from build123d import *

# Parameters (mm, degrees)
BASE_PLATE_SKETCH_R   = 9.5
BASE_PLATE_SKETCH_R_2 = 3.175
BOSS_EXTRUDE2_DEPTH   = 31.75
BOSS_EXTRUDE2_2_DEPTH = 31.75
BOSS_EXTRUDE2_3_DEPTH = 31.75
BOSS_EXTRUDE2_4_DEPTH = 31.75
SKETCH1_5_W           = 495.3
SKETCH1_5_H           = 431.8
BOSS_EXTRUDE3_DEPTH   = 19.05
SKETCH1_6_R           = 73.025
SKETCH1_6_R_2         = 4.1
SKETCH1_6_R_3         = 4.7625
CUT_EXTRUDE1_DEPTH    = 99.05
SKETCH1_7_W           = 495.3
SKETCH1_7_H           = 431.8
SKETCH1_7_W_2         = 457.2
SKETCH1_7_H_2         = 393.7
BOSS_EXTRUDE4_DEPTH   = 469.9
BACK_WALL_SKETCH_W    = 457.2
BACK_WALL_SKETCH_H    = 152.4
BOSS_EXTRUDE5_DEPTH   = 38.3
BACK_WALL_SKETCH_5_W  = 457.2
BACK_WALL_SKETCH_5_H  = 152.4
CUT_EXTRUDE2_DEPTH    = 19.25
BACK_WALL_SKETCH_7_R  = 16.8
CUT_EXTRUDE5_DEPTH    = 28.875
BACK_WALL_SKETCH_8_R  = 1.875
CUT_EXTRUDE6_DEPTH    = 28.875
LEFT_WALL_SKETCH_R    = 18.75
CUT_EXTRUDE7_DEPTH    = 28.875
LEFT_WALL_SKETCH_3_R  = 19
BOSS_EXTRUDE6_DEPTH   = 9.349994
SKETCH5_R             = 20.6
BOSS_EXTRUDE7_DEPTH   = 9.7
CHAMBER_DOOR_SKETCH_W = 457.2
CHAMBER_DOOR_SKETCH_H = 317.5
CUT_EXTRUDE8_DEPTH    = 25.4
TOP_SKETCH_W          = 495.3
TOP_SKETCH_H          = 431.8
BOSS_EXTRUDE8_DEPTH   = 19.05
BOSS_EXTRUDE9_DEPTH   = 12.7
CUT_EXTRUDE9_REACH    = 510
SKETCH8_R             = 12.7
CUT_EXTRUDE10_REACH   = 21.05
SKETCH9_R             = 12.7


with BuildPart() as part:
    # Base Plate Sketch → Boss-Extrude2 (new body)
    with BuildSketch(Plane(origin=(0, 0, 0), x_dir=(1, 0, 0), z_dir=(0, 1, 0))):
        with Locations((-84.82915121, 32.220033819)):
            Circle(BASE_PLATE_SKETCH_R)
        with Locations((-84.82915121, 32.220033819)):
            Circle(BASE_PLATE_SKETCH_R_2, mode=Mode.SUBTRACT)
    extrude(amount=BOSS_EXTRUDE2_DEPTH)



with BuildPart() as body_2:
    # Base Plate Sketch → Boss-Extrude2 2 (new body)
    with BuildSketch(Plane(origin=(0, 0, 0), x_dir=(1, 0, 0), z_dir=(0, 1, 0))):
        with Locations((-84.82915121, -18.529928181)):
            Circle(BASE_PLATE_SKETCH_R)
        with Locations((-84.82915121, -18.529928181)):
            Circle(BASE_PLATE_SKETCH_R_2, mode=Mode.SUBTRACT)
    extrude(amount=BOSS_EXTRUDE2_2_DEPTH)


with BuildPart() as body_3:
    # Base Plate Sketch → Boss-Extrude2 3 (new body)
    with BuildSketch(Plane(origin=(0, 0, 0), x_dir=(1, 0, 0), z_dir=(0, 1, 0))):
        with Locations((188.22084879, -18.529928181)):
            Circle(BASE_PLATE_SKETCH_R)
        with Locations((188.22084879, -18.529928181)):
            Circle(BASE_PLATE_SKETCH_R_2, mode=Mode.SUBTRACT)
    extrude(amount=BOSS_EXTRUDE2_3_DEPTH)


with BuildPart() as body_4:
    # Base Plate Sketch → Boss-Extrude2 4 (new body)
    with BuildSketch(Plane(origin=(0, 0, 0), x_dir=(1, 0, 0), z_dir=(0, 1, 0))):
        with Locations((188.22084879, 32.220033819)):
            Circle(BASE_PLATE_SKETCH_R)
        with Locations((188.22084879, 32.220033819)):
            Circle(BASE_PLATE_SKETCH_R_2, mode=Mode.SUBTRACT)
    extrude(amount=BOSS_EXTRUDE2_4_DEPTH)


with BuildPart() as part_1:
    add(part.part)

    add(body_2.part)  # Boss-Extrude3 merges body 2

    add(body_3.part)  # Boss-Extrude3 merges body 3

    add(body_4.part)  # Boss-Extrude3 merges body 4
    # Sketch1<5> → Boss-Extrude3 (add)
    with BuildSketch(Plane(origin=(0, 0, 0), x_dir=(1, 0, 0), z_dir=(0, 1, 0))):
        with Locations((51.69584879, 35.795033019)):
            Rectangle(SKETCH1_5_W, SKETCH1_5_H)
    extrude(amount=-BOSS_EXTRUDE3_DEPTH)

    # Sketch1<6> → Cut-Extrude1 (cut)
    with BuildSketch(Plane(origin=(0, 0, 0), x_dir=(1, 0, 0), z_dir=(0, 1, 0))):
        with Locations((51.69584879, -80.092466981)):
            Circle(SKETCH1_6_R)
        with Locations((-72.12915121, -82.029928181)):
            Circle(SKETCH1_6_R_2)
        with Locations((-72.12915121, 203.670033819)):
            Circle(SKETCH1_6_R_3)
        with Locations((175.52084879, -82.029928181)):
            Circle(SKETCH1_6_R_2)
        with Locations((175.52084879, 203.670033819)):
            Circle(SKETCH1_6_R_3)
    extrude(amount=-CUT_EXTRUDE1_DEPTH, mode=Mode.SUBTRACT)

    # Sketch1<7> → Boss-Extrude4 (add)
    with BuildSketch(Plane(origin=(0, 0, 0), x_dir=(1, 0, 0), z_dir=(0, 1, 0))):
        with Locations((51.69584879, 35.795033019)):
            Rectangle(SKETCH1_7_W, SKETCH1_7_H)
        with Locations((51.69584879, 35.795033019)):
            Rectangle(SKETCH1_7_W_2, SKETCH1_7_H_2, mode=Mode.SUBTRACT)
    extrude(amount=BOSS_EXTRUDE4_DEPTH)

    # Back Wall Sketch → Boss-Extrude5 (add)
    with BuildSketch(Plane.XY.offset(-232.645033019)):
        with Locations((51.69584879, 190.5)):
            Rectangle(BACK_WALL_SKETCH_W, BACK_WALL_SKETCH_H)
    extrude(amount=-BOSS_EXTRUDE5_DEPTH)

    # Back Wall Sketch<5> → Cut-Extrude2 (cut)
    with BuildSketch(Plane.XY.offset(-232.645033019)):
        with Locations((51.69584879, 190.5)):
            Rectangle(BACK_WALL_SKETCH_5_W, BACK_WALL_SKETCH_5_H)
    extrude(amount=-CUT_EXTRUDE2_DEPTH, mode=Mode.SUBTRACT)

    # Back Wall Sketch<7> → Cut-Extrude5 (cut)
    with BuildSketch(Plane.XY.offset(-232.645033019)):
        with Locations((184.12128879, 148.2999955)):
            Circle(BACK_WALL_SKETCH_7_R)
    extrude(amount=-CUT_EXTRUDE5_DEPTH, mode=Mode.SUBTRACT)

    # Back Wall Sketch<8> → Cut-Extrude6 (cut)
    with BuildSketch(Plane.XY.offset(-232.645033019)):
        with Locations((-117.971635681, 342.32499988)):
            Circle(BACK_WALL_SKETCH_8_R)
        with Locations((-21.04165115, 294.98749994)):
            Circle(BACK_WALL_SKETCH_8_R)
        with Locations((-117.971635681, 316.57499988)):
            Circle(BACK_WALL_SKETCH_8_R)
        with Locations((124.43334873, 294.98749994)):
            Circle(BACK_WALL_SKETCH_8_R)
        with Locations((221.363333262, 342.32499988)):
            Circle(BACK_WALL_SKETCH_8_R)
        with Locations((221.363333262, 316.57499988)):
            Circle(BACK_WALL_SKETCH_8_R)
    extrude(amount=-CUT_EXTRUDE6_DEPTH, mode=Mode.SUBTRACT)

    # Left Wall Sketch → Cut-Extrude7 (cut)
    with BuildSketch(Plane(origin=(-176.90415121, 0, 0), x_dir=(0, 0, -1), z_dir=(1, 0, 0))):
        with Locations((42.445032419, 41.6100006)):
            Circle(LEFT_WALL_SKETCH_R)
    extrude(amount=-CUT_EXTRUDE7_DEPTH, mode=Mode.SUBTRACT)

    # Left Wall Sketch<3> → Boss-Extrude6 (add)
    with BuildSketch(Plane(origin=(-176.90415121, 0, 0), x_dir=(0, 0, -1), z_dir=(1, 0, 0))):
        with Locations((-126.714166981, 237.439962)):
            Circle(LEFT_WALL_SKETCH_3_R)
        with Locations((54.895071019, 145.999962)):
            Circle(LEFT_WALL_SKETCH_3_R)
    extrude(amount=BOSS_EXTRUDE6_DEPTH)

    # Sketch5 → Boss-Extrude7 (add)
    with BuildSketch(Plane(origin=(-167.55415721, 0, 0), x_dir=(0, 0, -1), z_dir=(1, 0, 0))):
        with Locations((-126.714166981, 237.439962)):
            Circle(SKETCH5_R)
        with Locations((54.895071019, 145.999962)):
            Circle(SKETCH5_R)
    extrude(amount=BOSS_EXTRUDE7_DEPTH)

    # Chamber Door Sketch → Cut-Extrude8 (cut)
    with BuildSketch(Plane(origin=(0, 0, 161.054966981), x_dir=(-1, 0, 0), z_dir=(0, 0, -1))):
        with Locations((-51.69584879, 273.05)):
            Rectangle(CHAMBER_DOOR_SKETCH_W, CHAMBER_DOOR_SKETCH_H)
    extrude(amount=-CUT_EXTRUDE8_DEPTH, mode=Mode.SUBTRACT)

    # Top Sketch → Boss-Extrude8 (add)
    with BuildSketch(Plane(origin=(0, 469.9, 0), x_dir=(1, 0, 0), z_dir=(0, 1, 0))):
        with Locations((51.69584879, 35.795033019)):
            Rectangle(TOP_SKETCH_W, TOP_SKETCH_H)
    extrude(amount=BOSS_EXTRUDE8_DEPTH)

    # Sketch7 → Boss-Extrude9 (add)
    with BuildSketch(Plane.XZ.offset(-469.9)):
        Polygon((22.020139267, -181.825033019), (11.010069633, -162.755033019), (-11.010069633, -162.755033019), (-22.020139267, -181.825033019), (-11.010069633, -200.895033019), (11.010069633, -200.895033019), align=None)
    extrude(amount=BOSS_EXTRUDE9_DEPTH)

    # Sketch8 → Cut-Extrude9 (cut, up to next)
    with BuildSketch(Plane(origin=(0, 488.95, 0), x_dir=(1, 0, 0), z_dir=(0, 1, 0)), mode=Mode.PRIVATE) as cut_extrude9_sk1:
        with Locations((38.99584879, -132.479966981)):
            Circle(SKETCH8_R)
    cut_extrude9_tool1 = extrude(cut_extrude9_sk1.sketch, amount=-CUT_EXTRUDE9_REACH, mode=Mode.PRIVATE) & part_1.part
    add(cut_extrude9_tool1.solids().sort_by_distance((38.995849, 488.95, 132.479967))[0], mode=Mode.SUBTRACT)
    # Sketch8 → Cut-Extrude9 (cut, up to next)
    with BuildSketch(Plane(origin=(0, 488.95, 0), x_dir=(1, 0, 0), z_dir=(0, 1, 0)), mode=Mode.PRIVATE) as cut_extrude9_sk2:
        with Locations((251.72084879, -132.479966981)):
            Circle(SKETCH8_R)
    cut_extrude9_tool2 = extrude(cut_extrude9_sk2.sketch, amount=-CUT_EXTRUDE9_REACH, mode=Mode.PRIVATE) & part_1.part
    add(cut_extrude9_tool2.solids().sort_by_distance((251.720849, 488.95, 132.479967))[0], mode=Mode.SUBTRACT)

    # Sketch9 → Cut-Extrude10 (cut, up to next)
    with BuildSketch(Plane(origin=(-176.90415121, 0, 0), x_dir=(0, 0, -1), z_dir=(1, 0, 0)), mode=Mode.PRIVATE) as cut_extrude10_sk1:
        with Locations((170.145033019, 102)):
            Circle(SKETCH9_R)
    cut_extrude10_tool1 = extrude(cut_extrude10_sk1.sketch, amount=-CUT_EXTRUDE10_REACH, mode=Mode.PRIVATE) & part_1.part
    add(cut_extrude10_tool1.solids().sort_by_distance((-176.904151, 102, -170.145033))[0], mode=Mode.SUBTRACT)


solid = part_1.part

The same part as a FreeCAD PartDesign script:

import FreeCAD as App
import Part
import Sketcher
Q = App.Units.Quantity

doc = App.newDocument("Part")
body = doc.addObject("PartDesign::Body", "Body")

sketch1 = doc.addObject("Sketcher::SketchObject", "Sketch")
body.addObject(sketch1)
sketch1.AttachmentSupport = (doc.XZ_Plane, [""])
sketch1.MapMode = "FlatFace"
sketch1.addGeometry(Part.Circle(App.Vector(-84.8, -32.2, 0), App.Vector(0, 0, 1), 9.5), False)
sketch1.addGeometry(Part.Circle(App.Vector(-84.8, -32.2, 0), App.Vector(0, 0, 1), 3.2), False)
sketch1.addConstraint(Sketcher.Constraint("Coincident", 1, 3, 0, 3))
sketch1.addConstraint(Sketcher.Constraint("Diameter", 1, Q("0.25 in")))
sketch1.addConstraint(Sketcher.Constraint("Diameter", 0, 19.0))
sketch1.addConstraint(Sketcher.Constraint("DistanceX", 0, 3, -1, 1, 84.829151))
sketch1.addConstraint(Sketcher.Constraint("DistanceY", 0, 3, -1, 1, 32.220034))
pad1 = doc.addObject("PartDesign::Pad", "Pad")
body.addObject(pad1)
pad1.Profile = sketch1
pad1.Length = Q("1.25 in")
pad1.Reversed = True
body2 = doc.addObject("PartDesign::Body", "Body001")

sketch2 = doc.addObject("Sketcher::SketchObject", "Sketch001")
body2.addObject(sketch2)
sketch2.AttachmentSupport = (doc.getObject("XZ_Plane001"), [""])
sketch2.MapMode = "FlatFace"
sketch2.addGeometry(Part.Circle(App.Vector(-84.8, 18.5, 0), App.Vector(0, 0, 1), 9.5), False)
sketch2.addGeometry(Part.Circle(App.Vector(-84.8, 18.5, 0), App.Vector(0, 0, 1), 3.2), False)
sketch2.addConstraint(Sketcher.Constraint("Coincident", 1, 3, 0, 3))
sketch2.addConstraint(Sketcher.Constraint("Diameter", 1, Q("0.25 in")))
sketch2.addConstraint(Sketcher.Constraint("Diameter", 0, 19.0))
sketch2.addConstraint(Sketcher.Constraint("DistanceX", 0, 3, -1, 1, 84.829151))
sketch2.addConstraint(Sketcher.Constraint("DistanceY", -1, 1, 0, 3, 18.529928))
pad2 = doc.addObject("PartDesign::Pad", "Pad001")
body2.addObject(pad2)
pad2.Profile = sketch2
pad2.Length = Q("1.25 in")
pad2.Reversed = True
body3 = doc.addObject("PartDesign::Body", "Body002")

sketch3 = doc.addObject("Sketcher::SketchObject", "Sketch002")
body3.addObject(sketch3)
sketch3.AttachmentSupport = (doc.getObject("XZ_Plane002"), [""])
sketch3.MapMode = "FlatFace"
sketch3.addGeometry(Part.Circle(App.Vector(188.2, 18.5, 0), App.Vector(0, 0, 1), 9.5), False)
sketch3.addGeometry(Part.Circle(App.Vector(188.2, 18.5, 0), App.Vector(0, 0, 1), 3.2), False)
sketch3.addConstraint(Sketcher.Constraint("Coincident", 1, 3, 0, 3))
sketch3.addConstraint(Sketcher.Constraint("Diameter", 1, Q("0.25 in")))
sketch3.addConstraint(Sketcher.Constraint("Diameter", 0, 19.0))
sketch3.addConstraint(Sketcher.Constraint("DistanceX", -1, 1, 0, 3, 188.220849))
sketch3.addConstraint(Sketcher.Constraint("DistanceY", -1, 1, 0, 3, 18.529928))
pad3 = doc.addObject("PartDesign::Pad", "Pad002")
body3.addObject(pad3)
pad3.Profile = sketch3
pad3.Length = Q("1.25 in")
pad3.Reversed = True
body4 = doc.addObject("PartDesign::Body", "Body003")

sketch4 = doc.addObject("Sketcher::SketchObject", "Sketch003")
body4.addObject(sketch4)
sketch4.AttachmentSupport = (doc.getObject("XZ_Plane003"), [""])
sketch4.MapMode = "FlatFace"
sketch4.addGeometry(Part.Circle(App.Vector(188.2, -32.2, 0), App.Vector(0, 0, 1), 9.5), False)
sketch4.addGeometry(Part.Circle(App.Vector(188.2, -32.2, 0), App.Vector(0, 0, 1), 3.2), False)
sketch4.addConstraint(Sketcher.Constraint("Coincident", 1, 3, 0, 3))
sketch4.addConstraint(Sketcher.Constraint("Diameter", 1, Q("0.25 in")))
sketch4.addConstraint(Sketcher.Constraint("Diameter", 0, 19.0))
sketch4.addConstraint(Sketcher.Constraint("DistanceX", -1, 1, 0, 3, 188.220849))
sketch4.addConstraint(Sketcher.Constraint("DistanceY", 0, 3, -1, 1, 32.220034))
pad4 = doc.addObject("PartDesign::Pad", "Pad003")
body4.addObject(pad4)
pad4.Profile = sketch4
pad4.Length = Q("1.25 in")
pad4.Reversed = True
body.AllowCompound = True
doc.recompute()

boolean = doc.addObject("PartDesign::Boolean", "Boolean")
body.addObject(boolean)
boolean.Type = "Fuse"
boolean.addObjects([body2])
doc.recompute()

boolean2 = doc.addObject("PartDesign::Boolean", "Boolean001")
body.addObject(boolean2)
boolean2.Type = "Fuse"
boolean2.addObjects([body3])
doc.recompute()

boolean3 = doc.addObject("PartDesign::Boolean", "Boolean002")
body.addObject(boolean3)
boolean3.Type = "Fuse"
boolean3.addObjects([body4])

sketch5 = doc.addObject("Sketcher::SketchObject", "Sketch004")
body.addObject(sketch5)
sketch5.AttachmentSupport = (doc.XZ_Plane, [""])
sketch5.MapMode = "FlatFace"
sketch5.addGeometry(Part.LineSegment(App.Vector(-196, -252, 0), App.Vector(-196, 180, 0)), False)
sketch5.addGeometry(Part.LineSegment(App.Vector(-196, 180, 0), App.Vector(299, 180, 0)), False)
sketch5.addGeometry(Part.LineSegment(App.Vector(299, 180, 0), App.Vector(299, -252, 0)), False)
sketch5.addGeometry(Part.LineSegment(App.Vector(299, -252, 0), App.Vector(-196, -252, 0)), False)
sketch5.addConstraint(Sketcher.Constraint("Coincident", 0, 2, 1, 1))
sketch5.addConstraint(Sketcher.Constraint("Coincident", 1, 2, 2, 1))
sketch5.addConstraint(Sketcher.Constraint("Coincident", 2, 2, 3, 1))
sketch5.addConstraint(Sketcher.Constraint("Coincident", 3, 2, 0, 1))
sketch5.addConstraint(Sketcher.Constraint("Vertical", 0))
sketch5.addConstraint(Sketcher.Constraint("Horizontal", 1))
sketch5.addConstraint(Sketcher.Constraint("Vertical", 2))
sketch5.addConstraint(Sketcher.Constraint("Horizontal", 3))
sketch5.addConstraint(Sketcher.Constraint("DistanceY", 0, 1, 0, 2, Q("17 in")))
sketch5.addConstraint(Sketcher.Constraint("DistanceX", 1, 1, 1, 2, Q("19.5 in")))
sketch5.addConstraint(Sketcher.Constraint("DistanceX", 0, 2, -1, 1, 195.954151))
sketch5.addConstraint(Sketcher.Constraint("DistanceY", -1, 1, 0, 2, 180.104967))
pad5 = doc.addObject("PartDesign::Pad", "Pad004")
body.addObject(pad5)
pad5.Profile = sketch5
pad5.Length = Q("0.75 in")

sketch6 = doc.addObject("Sketcher::SketchObject", "Sketch005")
body.addObject(sketch6)
sketch6.AttachmentSupport = (doc.XZ_Plane, [""])
sketch6.MapMode = "FlatFace"
sketch6.addGeometry(Part.Circle(App.Vector(51.7, 80.1, 0), App.Vector(0, 0, 1), 73), False)
sketch6.addGeometry(Part.Circle(App.Vector(-72.1, 82, 0), App.Vector(0, 0, 1), 4.1), False)
sketch6.addGeometry(Part.Circle(App.Vector(-72.1, -203.7, 0), App.Vector(0, 0, 1), 4.8), False)
sketch6.addGeometry(Part.Circle(App.Vector(175.5, 82, 0), App.Vector(0, 0, 1), 4.1), False)
sketch6.addGeometry(Part.Circle(App.Vector(175.5, -203.7, 0), App.Vector(0, 0, 1), 4.8), False)
sketch6.addConstraint(Sketcher.Constraint("Equal", 1, 3))
sketch6.addConstraint(Sketcher.Constraint("Equal", 2, 4))
sketch6.addConstraint(Sketcher.Constraint("Horizontal", 1, 3, 3, 3))
sketch6.addConstraint(Sketcher.Constraint("Horizontal", 2, 3, 4, 3))
sketch6.addConstraint(Sketcher.Constraint("Vertical", 1, 3, 2, 3))
sketch6.addConstraint(Sketcher.Constraint("Vertical", 3, 3, 4, 3))
sketch6.addConstraint(Sketcher.Constraint("Diameter", 0, Q("5.75 in")))
sketch6.addConstraint(Sketcher.Constraint("Diameter", 2, Q("0.375 in")))
sketch6.addConstraint(Sketcher.Constraint("Diameter", 1, 8.2))
sketch6.addConstraint(Sketcher.Constraint("DistanceX", 1, 3, 3, 3, Q("9.75 in")))
sketch6.addConstraint(Sketcher.Constraint("DistanceX", 1, 3, 0, 3, Q("4.875 in")))
sketch6.addConstraint(Sketcher.Constraint("DistanceY", 2, 3, 0, 3, 283.762501))
sketch6.addConstraint(Sketcher.Constraint("DistanceX", -1, 1, 0, 3, 51.695849))
sketch6.addConstraint(Sketcher.Constraint("DistanceY", -1, 1, 1, 3, 82.029928))
sketch6.addConstraint(Sketcher.Constraint("DistanceY", 0, 3, 1, 3, 1.937461))
pocket1 = doc.addObject("PartDesign::Pocket", "Pocket")
body.addObject(pocket1)
pocket1.Profile = sketch6
pocket1.Length = 99.05
pocket1.Reversed = True

sketch7 = doc.addObject("Sketcher::SketchObject", "Sketch006")
body.addObject(sketch7)
sketch7.AttachmentSupport = (doc.XZ_Plane, [""])
sketch7.MapMode = "FlatFace"
sketch7.addGeometry(Part.LineSegment(App.Vector(-196, -252, 0), App.Vector(-196, 180, 0)), False)
sketch7.addGeometry(Part.LineSegment(App.Vector(-196, 180, 0), App.Vector(299, 180, 0)), False)
sketch7.addGeometry(Part.LineSegment(App.Vector(299, 180, 0), App.Vector(299, -252, 0)), False)
sketch7.addGeometry(Part.LineSegment(App.Vector(299, -252, 0), App.Vector(-196, -252, 0)), False)
sketch7.addGeometry(Part.LineSegment(App.Vector(280, 161, 0), App.Vector(-177, 161, 0)), False)
sketch7.addGeometry(Part.LineSegment(App.Vector(-177, 161, 0), App.Vector(-177, -233, 0)), False)
sketch7.addGeometry(Part.LineSegment(App.Vector(-177, -233, 0), App.Vector(280, -233, 0)), False)
sketch7.addGeometry(Part.LineSegment(App.Vector(280, -233, 0), App.Vector(280, 161, 0)), False)
sketch7.addConstraint(Sketcher.Constraint("Coincident", 0, 2, 1, 1))
sketch7.addConstraint(Sketcher.Constraint("Coincident", 1, 2, 2, 1))
sketch7.addConstraint(Sketcher.Constraint("Coincident", 2, 2, 3, 1))
sketch7.addConstraint(Sketcher.Constraint("Coincident", 3, 2, 0, 1))
sketch7.addConstraint(Sketcher.Constraint("Coincident", 4, 2, 5, 1))
sketch7.addConstraint(Sketcher.Constraint("Coincident", 5, 2, 6, 1))
sketch7.addConstraint(Sketcher.Constraint("Coincident", 6, 2, 7, 1))
sketch7.addConstraint(Sketcher.Constraint("Coincident", 7, 2, 4, 1))
sketch7.addConstraint(Sketcher.Constraint("Vertical", 0))
sketch7.addConstraint(Sketcher.Constraint("Horizontal", 1))
sketch7.addConstraint(Sketcher.Constraint("Vertical", 2))
sketch7.addConstraint(Sketcher.Constraint("Horizontal", 3))
sketch7.addConstraint(Sketcher.Constraint("Horizontal", 4))
sketch7.addConstraint(Sketcher.Constraint("Vertical", 5))
sketch7.addConstraint(Sketcher.Constraint("Horizontal", 6))
sketch7.addConstraint(Sketcher.Constraint("Vertical", 7))
sketch7.addConstraint(Sketcher.Constraint("DistanceX", 4, 2, 4, 1, Q("18 in")))
sketch7.addConstraint(Sketcher.Constraint("DistanceY", 0, 1, 0, 2, Q("17 in")))
sketch7.addConstraint(Sketcher.Constraint("DistanceX", 1, 1, 1, 2, Q("19.5 in")))
sketch7.addConstraint(Sketcher.Constraint("DistanceY", 5, 2, 5, 1, Q("15.5 in")))
sketch7.addConstraint(Sketcher.Constraint("DistanceX", 0, 2, 4, 2, Q("0.75 in")))
sketch7.addConstraint(Sketcher.Constraint("DistanceY", 4, 2, 0, 2, Q("0.75 in")))
sketch7.addConstraint(Sketcher.Constraint("DistanceX", 0, 2, -1, 1, 195.954151))
sketch7.addConstraint(Sketcher.Constraint("DistanceY", -1, 1, 0, 2, 180.104967))
pad6 = doc.addObject("PartDesign::Pad", "Pad005")
body.addObject(pad6)
pad6.Profile = sketch7
pad6.Length = Q("18.5 in")
pad6.Reversed = True

sketch8 = doc.addObject("Sketcher::SketchObject", "Sketch007")
body.addObject(sketch8)
sketch8.AttachmentSupport = (doc.XY_Plane, [""])
sketch8.MapMode = "FlatFace"
sketch8.AttachmentOffset = App.Placement(App.Vector(0, 0, -232.645033), App.Rotation())
sketch8.addGeometry(Part.LineSegment(App.Vector(-177, 267, 0), App.Vector(-177, 114, 0)), False)
sketch8.addGeometry(Part.LineSegment(App.Vector(-177, 114, 0), App.Vector(280, 114, 0)), False)
sketch8.addGeometry(Part.LineSegment(App.Vector(280, 114, 0), App.Vector(280, 267, 0)), False)
sketch8.addGeometry(Part.LineSegment(App.Vector(280, 267, 0), App.Vector(-177, 267, 0)), False)
sketch8.addConstraint(Sketcher.Constraint("Coincident", 0, 2, 1, 1))
sketch8.addConstraint(Sketcher.Constraint("Coincident", 1, 2, 2, 1))
sketch8.addConstraint(Sketcher.Constraint("Coincident", 2, 2, 3, 1))
sketch8.addConstraint(Sketcher.Constraint("Coincident", 3, 2, 0, 1))
sketch8.addConstraint(Sketcher.Constraint("Vertical", 0))
sketch8.addConstraint(Sketcher.Constraint("Horizontal", 1))
sketch8.addConstraint(Sketcher.Constraint("Vertical", 2))
sketch8.addConstraint(Sketcher.Constraint("Horizontal", 3))
sketch8.addConstraint(Sketcher.Constraint("DistanceX", 1, 1, 1, 2, Q("18 in")))
sketch8.addConstraint(Sketcher.Constraint("DistanceY", 0, 2, 0, 1, Q("6 in")))
sketch8.addConstraint(Sketcher.Constraint("DistanceY", -1, 1, 0, 2, Q("4.5 in")))
sketch8.addConstraint(Sketcher.Constraint("DistanceX", 0, 2, -1, 1, 176.904151))
pad7 = doc.addObject("PartDesign::Pad", "Pad006")
body.addObject(pad7)
pad7.Profile = sketch8
pad7.Length = 38.3
pad7.Reversed = True

sketch9 = doc.addObject("Sketcher::SketchObject", "Sketch008")
body.addObject(sketch9)
sketch9.AttachmentSupport = (doc.XY_Plane, [""])
sketch9.MapMode = "FlatFace"
sketch9.AttachmentOffset = App.Placement(App.Vector(0, 0, -232.645033), App.Rotation())
sketch9.addGeometry(Part.LineSegment(App.Vector(-177, 267, 0), App.Vector(-177, 114, 0)), False)
sketch9.addGeometry(Part.LineSegment(App.Vector(-177, 114, 0), App.Vector(280, 114, 0)), False)
sketch9.addGeometry(Part.LineSegment(App.Vector(280, 114, 0), App.Vector(280, 267, 0)), False)
sketch9.addGeometry(Part.LineSegment(App.Vector(280, 267, 0), App.Vector(-177, 267, 0)), False)
sketch9.addConstraint(Sketcher.Constraint("Coincident", 0, 2, 1, 1))
sketch9.addConstraint(Sketcher.Constraint("Coincident", 1, 2, 2, 1))
sketch9.addConstraint(Sketcher.Constraint("Coincident", 2, 2, 3, 1))
sketch9.addConstraint(Sketcher.Constraint("Coincident", 3, 2, 0, 1))
sketch9.addConstraint(Sketcher.Constraint("Vertical", 0))
sketch9.addConstraint(Sketcher.Constraint("Horizontal", 1))
sketch9.addConstraint(Sketcher.Constraint("Vertical", 2))
sketch9.addConstraint(Sketcher.Constraint("Horizontal", 3))
sketch9.addConstraint(Sketcher.Constraint("DistanceX", 1, 1, 1, 2, Q("18 in")))
sketch9.addConstraint(Sketcher.Constraint("DistanceY", 0, 2, 0, 1, Q("6 in")))
sketch9.addConstraint(Sketcher.Constraint("DistanceY", -1, 1, 0, 2, Q("4.5 in")))
sketch9.addConstraint(Sketcher.Constraint("DistanceX", 0, 2, -1, 1, 176.904151))
pocket2 = doc.addObject("PartDesign::Pocket", "Pocket001")
body.addObject(pocket2)
pocket2.Profile = sketch9
pocket2.Length = 19.25

sketch10 = doc.addObject("Sketcher::SketchObject", "Sketch009")
body.addObject(sketch10)
sketch10.AttachmentSupport = (doc.XY_Plane, [""])
sketch10.MapMode = "FlatFace"
sketch10.AttachmentOffset = App.Placement(App.Vector(0, 0, -232.645033), App.Rotation())
sketch10.addGeometry(Part.Circle(App.Vector(184, 148, 0), App.Vector(0, 0, 1), 17), False)
sketch10.addConstraint(Sketcher.Constraint("Diameter", 0, 33.6))
sketch10.addConstraint(Sketcher.Constraint("DistanceX", -1, 1, 0, 3, 184.121289))
sketch10.addConstraint(Sketcher.Constraint("DistanceY", -1, 1, 0, 3, 148.299995))
pocket3 = doc.addObject("PartDesign::Pocket", "Pocket002")
body.addObject(pocket3)
pocket3.Profile = sketch10
pocket3.Length = 28.875

sketch11 = doc.addObject("Sketcher::SketchObject", "Sketch010")
body.addObject(sketch11)
sketch11.AttachmentSupport = (doc.XY_Plane, [""])
sketch11.MapMode = "FlatFace"
sketch11.AttachmentOffset = App.Placement(App.Vector(0, 0, -232.645033), App.Rotation())
sketch11.addGeometry(Part.Circle(App.Vector(-118, 342.3, 0), App.Vector(0, 0, 1), 1.9), False)
sketch11.addGeometry(Part.Circle(App.Vector(-21, 295, 0), App.Vector(0, 0, 1), 1.9), False)
sketch11.addGeometry(Part.Circle(App.Vector(-118, 316.6, 0), App.Vector(0, 0, 1), 1.9), False)
sketch11.addGeometry(Part.Circle(App.Vector(124.4, 295, 0), App.Vector(0, 0, 1), 1.9), False)
sketch11.addGeometry(Part.Circle(App.Vector(221.4, 342.3, 0), App.Vector(0, 0, 1), 1.9), False)
sketch11.addGeometry(Part.Circle(App.Vector(221.4, 316.6, 0), App.Vector(0, 0, 1), 1.9), False)
sketch11.addConstraint(Sketcher.Constraint("Equal", 0, 1))
sketch11.addConstraint(Sketcher.Constraint("Equal", 1, 2))
sketch11.addConstraint(Sketcher.Constraint("Equal", 2, 3))
sketch11.addConstraint(Sketcher.Constraint("Equal", 3, 4))
sketch11.addConstraint(Sketcher.Constraint("Equal", 4, 5))
sketch11.addConstraint(Sketcher.Constraint("Horizontal", 1, 3, 3, 3))
sketch11.addConstraint(Sketcher.Constraint("Horizontal", 0, 3, 4, 3))
sketch11.addConstraint(Sketcher.Constraint("Horizontal", 2, 3, 5, 3))
sketch11.addConstraint(Sketcher.Constraint("Vertical", 0, 3, 2, 3))
sketch11.addConstraint(Sketcher.Constraint("Vertical", 4, 3, 5, 3))
sketch11.addConstraint(Sketcher.Constraint("Diameter", 0, 3.75))
sketch11.addConstraint(Sketcher.Constraint("DistanceY", -1, 1, 0, 3, 342.325))
sketch11.addConstraint(Sketcher.Constraint("DistanceY", -1, 1, 1, 3, 294.9875))
sketch11.addConstraint(Sketcher.Constraint("DistanceY", -1, 1, 2, 3, 316.575))
sketch11.addConstraint(Sketcher.Constraint("DistanceX", 1, 3, 3, 3, 145.475))
sketch11.addConstraint(Sketcher.Constraint("DistanceX", 1, 3, -1, 1, 21.041651))
sketch11.addConstraint(Sketcher.Constraint("DistanceX", 0, 3, 4, 3, 339.334969))
sketch11.addConstraint(Sketcher.Constraint("DistanceX", 0, 3, -1, 1, 117.971636))
pocket4 = doc.addObject("PartDesign::Pocket", "Pocket003")
body.addObject(pocket4)
pocket4.Profile = sketch11
pocket4.Length = 28.875

sketch12 = doc.addObject("Sketcher::SketchObject", "Sketch011")
body.addObject(sketch12)
sketch12.AttachmentSupport = (doc.YZ_Plane, [""])
sketch12.MapMode = "FlatFace"
sketch12.AttachmentOffset = App.Placement(App.Vector(0, 0, -176.904151), App.Rotation())
sketch12.addGeometry(Part.Circle(App.Vector(42, -42, 0), App.Vector(0, 0, 1), 19), False)
sketch12.addConstraint(Sketcher.Constraint("Diameter", 0, 37.5))
sketch12.addConstraint(Sketcher.Constraint("DistanceX", -1, 1, 0, 3, 41.610001))
sketch12.addConstraint(Sketcher.Constraint("DistanceY", 0, 3, -1, 1, 42.445032))
pocket5 = doc.addObject("PartDesign::Pocket", "Pocket004")
body.addObject(pocket5)
pocket5.Profile = sketch12
pocket5.Length = 28.875

sketch13 = doc.addObject("Sketcher::SketchObject", "Sketch012")
body.addObject(sketch13)
sketch13.AttachmentSupport = (doc.YZ_Plane, [""])
sketch13.MapMode = "FlatFace"
sketch13.AttachmentOffset = App.Placement(App.Vector(0, 0, -176.904151), App.Rotation())
sketch13.addGeometry(Part.Circle(App.Vector(237, 127, 0), App.Vector(0, 0, 1), 19), False)
sketch13.addGeometry(Part.Circle(App.Vector(146, -55, 0), App.Vector(0, 0, 1), 19), False)
sketch13.addConstraint(Sketcher.Constraint("Equal", 0, 1))
sketch13.addConstraint(Sketcher.Constraint("DistanceX", 1, 3, 0, 3, Q("3.6 in")))
sketch13.addConstraint(Sketcher.Constraint("Diameter", 0, 38.0))
sketch13.addConstraint(Sketcher.Constraint("DistanceX", -1, 1, 0, 3, 237.439962))
sketch13.addConstraint(Sketcher.Constraint("DistanceY", 1, 3, -1, 1, 54.895071))
sketch13.addConstraint(Sketcher.Constraint("DistanceY", 1, 3, 0, 3, 181.609238))
pad8 = doc.addObject("PartDesign::Pad", "Pad007")
body.addObject(pad8)
pad8.Profile = sketch13
pad8.Length = 9.349994

sketch14 = doc.addObject("Sketcher::SketchObject", "Sketch013")
body.addObject(sketch14)
sketch14.AttachmentSupport = (doc.YZ_Plane, [""])
sketch14.MapMode = "FlatFace"
sketch14.AttachmentOffset = App.Placement(App.Vector(0, 0, -167.554157), App.Rotation())
sketch14.addGeometry(Part.Circle(App.Vector(237, 127, 0), App.Vector(0, 0, 1), 21), False)
sketch14.addGeometry(Part.Circle(App.Vector(146, -55, 0), App.Vector(0, 0, 1), 21), False)
sketch14.addConstraint(Sketcher.Constraint("Equal", 0, 1))
sketch14.addConstraint(Sketcher.Constraint("DistanceX", 1, 3, 0, 3, Q("3.6 in")))
sketch14.addConstraint(Sketcher.Constraint("Diameter", 0, 41.2))
sketch14.addConstraint(Sketcher.Constraint("DistanceX", -1, 1, 0, 3, 237.439962))
sketch14.addConstraint(Sketcher.Constraint("DistanceY", 1, 3, -1, 1, 54.895071))
sketch14.addConstraint(Sketcher.Constraint("DistanceY", 1, 3, 0, 3, 181.609238))
pad9 = doc.addObject("PartDesign::Pad", "Pad008")
body.addObject(pad9)
pad9.Profile = sketch14
pad9.Length = 9.7

sketch15 = doc.addObject("Sketcher::SketchObject", "Sketch014")
body.addObject(sketch15)
sketch15.AttachmentSupport = (doc.XY_Plane, [""])
sketch15.MapMode = "FlatFace"
sketch15.AttachmentOffset = App.Placement(App.Vector(0, 0, 161.054967), App.Rotation())
sketch15.addGeometry(Part.LineSegment(App.Vector(280, 432, 0), App.Vector(280, 114, 0)), False)
sketch15.addGeometry(Part.LineSegment(App.Vector(280, 114, 0), App.Vector(-177, 114, 0)), False)
sketch15.addGeometry(Part.LineSegment(App.Vector(-177, 114, 0), App.Vector(-177, 432, 0)), False)
sketch15.addGeometry(Part.LineSegment(App.Vector(-177, 432, 0), App.Vector(280, 432, 0)), False)
sketch15.addConstraint(Sketcher.Constraint("Coincident", 0, 2, 1, 1))
sketch15.addConstraint(Sketcher.Constraint("Coincident", 1, 2, 2, 1))
sketch15.addConstraint(Sketcher.Constraint("Coincident", 2, 2, 3, 1))
sketch15.addConstraint(Sketcher.Constraint("Coincident", 3, 2, 0, 1))
sketch15.addConstraint(Sketcher.Constraint("Vertical", 0))
sketch15.addConstraint(Sketcher.Constraint("Horizontal", 1))
sketch15.addConstraint(Sketcher.Constraint("Vertical", 2))
sketch15.addConstraint(Sketcher.Constraint("Horizontal", 3))
sketch15.addConstraint(Sketcher.Constraint("DistanceX", 1, 2, 1, 1, Q("18 in")))
sketch15.addConstraint(Sketcher.Constraint("DistanceY", 0, 2, 0, 1, Q("12.5 in")))
sketch15.addConstraint(Sketcher.Constraint("DistanceY", -1, 1, 2, 2, Q("17 in")))
sketch15.addConstraint(Sketcher.Constraint("DistanceX", -1, 1, 0, 2, 280.295849))
pocket6 = doc.addObject("PartDesign::Pocket", "Pocket005")
body.addObject(pocket6)
pocket6.Profile = sketch15
pocket6.Length = Q("1 in")
pocket6.Reversed = True

sketch16 = doc.addObject("Sketcher::SketchObject", "Sketch015")
body.addObject(sketch16)
sketch16.AttachmentSupport = (doc.XZ_Plane, [""])
sketch16.MapMode = "FlatFace"
sketch16.AttachmentOffset = App.Placement(App.Vector(0, 0, -18.5 * 25.4), App.Rotation())
sketch16.addGeometry(Part.LineSegment(App.Vector(-196, -252, 0), App.Vector(-196, 180, 0)), False)
sketch16.addGeometry(Part.LineSegment(App.Vector(-196, 180, 0), App.Vector(299, 180, 0)), False)
sketch16.addGeometry(Part.LineSegment(App.Vector(299, 180, 0), App.Vector(299, -252, 0)), False)
sketch16.addGeometry(Part.LineSegment(App.Vector(299, -252, 0), App.Vector(-196, -252, 0)), False)
sketch16.addConstraint(Sketcher.Constraint("Coincident", 0, 2, 1, 1))
sketch16.addConstraint(Sketcher.Constraint("Coincident", 1, 2, 2, 1))
sketch16.addConstraint(Sketcher.Constraint("Coincident", 2, 2, 3, 1))
sketch16.addConstraint(Sketcher.Constraint("Coincident", 3, 2, 0, 1))
sketch16.addConstraint(Sketcher.Constraint("Vertical", 0))
sketch16.addConstraint(Sketcher.Constraint("Horizontal", 1))
sketch16.addConstraint(Sketcher.Constraint("Vertical", 2))
sketch16.addConstraint(Sketcher.Constraint("Horizontal", 3))
sketch16.addConstraint(Sketcher.Constraint("DistanceY", 0, 1, 0, 2, Q("17 in")))
sketch16.addConstraint(Sketcher.Constraint("DistanceX", 1, 1, 1, 2, Q("19.5 in")))
sketch16.addConstraint(Sketcher.Constraint("DistanceX", 0, 2, -1, 1, 195.954151))
sketch16.addConstraint(Sketcher.Constraint("DistanceY", -1, 1, 0, 2, 180.104967))
pad10 = doc.addObject("PartDesign::Pad", "Pad009")
body.addObject(pad10)
pad10.Profile = sketch16
pad10.Length = Q("0.75 in")
pad10.Reversed = True

sketch17 = doc.addObject("Sketcher::SketchObject", "Sketch016")
body.addObject(sketch17)
sketch17.AttachmentSupport = (doc.XZ_Plane, [""])
sketch17.MapMode = "FlatFace"
sketch17.AttachmentOffset = App.Placement(App.Vector(0, 0, -18.5 * 25.4), App.Rotation())
sketch17.addGeometry(Part.LineSegment(App.Vector(22, -182, 0), App.Vector(11, -163, 0)), False)
sketch17.addGeometry(Part.LineSegment(App.Vector(11, -163, 0), App.Vector(-11, -163, 0)), False)
sketch17.addGeometry(Part.LineSegment(App.Vector(-11, -163, 0), App.Vector(-22, -182, 0)), False)
sketch17.addGeometry(Part.LineSegment(App.Vector(-22, -182, 0), App.Vector(-11, -201, 0)), False)
sketch17.addGeometry(Part.LineSegment(App.Vector(-11, -201, 0), App.Vector(11, -201, 0)), False)
sketch17.addGeometry(Part.LineSegment(App.Vector(11, -201, 0), App.Vector(22, -182, 0)), False)
sketch17.addConstraint(Sketcher.Constraint("Coincident", 0, 2, 1, 1))
sketch17.addConstraint(Sketcher.Constraint("Coincident", 1, 2, 2, 1))
sketch17.addConstraint(Sketcher.Constraint("Coincident", 2, 2, 3, 1))
sketch17.addConstraint(Sketcher.Constraint("Coincident", 3, 2, 4, 1))
sketch17.addConstraint(Sketcher.Constraint("Coincident", 4, 2, 5, 1))
sketch17.addConstraint(Sketcher.Constraint("Coincident", 5, 2, 0, 1))
sketch17.addConstraint(Sketcher.Constraint("Horizontal", 1))
sketch17.addConstraint(Sketcher.Constraint("Horizontal", 4))
sketch17.addConstraint(Sketcher.Constraint("Symmetric", 2, 2, 5, 2, -2))
sketch17.addConstraint(Sketcher.Constraint("Parallel", 0, 3))
sketch17.addConstraint(Sketcher.Constraint("Parallel", 2, 5))
sketch17.addConstraint(Sketcher.Constraint("Vertical", 1, 2, 3, 2))
sketch17.addConstraint(Sketcher.Constraint("Vertical", 0, 2, 4, 2))
sketch17.addConstraint(Sketcher.Constraint("Angle", 0, Q("120 deg")))
sketch17.addConstraint(Sketcher.Constraint("DistanceX", 1, 2, 1, 1, 22.020139))
sketch17.addConstraint(Sketcher.Constraint("DistanceY", 2, 2, 1, 2, 19.07))
sketch17.addConstraint(Sketcher.Constraint("DistanceY", 0, 2, -1, 1, 162.755033))
pad11 = doc.addObject("PartDesign::Pad", "Pad010")
body.addObject(pad11)
pad11.Profile = sketch17
pad11.Length = Q("0.5 in")

sketch18 = doc.addObject("Sketcher::SketchObject", "Sketch017")
body.addObject(sketch18)
sketch18.AttachmentSupport = (doc.XZ_Plane, [""])
sketch18.MapMode = "FlatFace"
sketch18.AttachmentOffset = App.Placement(App.Vector(0, 0, -19.25 * 25.4), App.Rotation())
sketch18.addGeometry(Part.Circle(App.Vector(39, 132, 0), App.Vector(0, 0, 1), 13), False)
sketch18.addConstraint(Sketcher.Constraint("Diameter", 0, Q("1 in")))
sketch18.addConstraint(Sketcher.Constraint("DistanceX", -1, 1, 0, 3, 38.995849))
sketch18.addConstraint(Sketcher.Constraint("DistanceY", -1, 1, 0, 3, 132.479967))
pocket7 = doc.addObject("PartDesign::Pocket", "Pocket006")
body.addObject(pocket7)
pocket7.Profile = sketch18
pocket7.Type = "UpToFirst"
pocket7.Reversed = True

sketch19 = doc.addObject("Sketcher::SketchObject", "Sketch018")
body.addObject(sketch19)
sketch19.AttachmentSupport = (doc.XZ_Plane, [""])
sketch19.MapMode = "FlatFace"
sketch19.AttachmentOffset = App.Placement(App.Vector(0, 0, -19.25 * 25.4), App.Rotation())
sketch19.addGeometry(Part.Circle(App.Vector(252, 132, 0), App.Vector(0, 0, 1), 13), False)
sketch19.addConstraint(Sketcher.Constraint("Diameter", 0, Q("1 in")))
sketch19.addConstraint(Sketcher.Constraint("DistanceX", -1, 1, 0, 3, 251.720849))
sketch19.addConstraint(Sketcher.Constraint("DistanceY", -1, 1, 0, 3, 132.479967))
pocket8 = doc.addObject("PartDesign::Pocket", "Pocket007")
body.addObject(pocket8)
pocket8.Profile = sketch19
pocket8.Type = "UpToFirst"
pocket8.Reversed = True

sketch20 = doc.addObject("Sketcher::SketchObject", "Sketch019")
body.addObject(sketch20)
sketch20.AttachmentSupport = (doc.YZ_Plane, [""])
sketch20.MapMode = "FlatFace"
sketch20.AttachmentOffset = App.Placement(App.Vector(0, 0, -176.904151), App.Rotation())
sketch20.addGeometry(Part.Circle(App.Vector(102, -170, 0), App.Vector(0, 0, 1), 13), False)
sketch20.addConstraint(Sketcher.Constraint("Diameter", 0, Q("1 in")))
sketch20.addConstraint(Sketcher.Constraint("DistanceX", -1, 1, 0, 3, 102.0))
sketch20.addConstraint(Sketcher.Constraint("DistanceY", 0, 3, -1, 1, 170.145033))
pocket9 = doc.addObject("PartDesign::Pocket", "Pocket008")
body.addObject(pocket9)
pocket9.Profile = sketch20
pocket9.Type = "UpToFirst"

doc.recompute()
